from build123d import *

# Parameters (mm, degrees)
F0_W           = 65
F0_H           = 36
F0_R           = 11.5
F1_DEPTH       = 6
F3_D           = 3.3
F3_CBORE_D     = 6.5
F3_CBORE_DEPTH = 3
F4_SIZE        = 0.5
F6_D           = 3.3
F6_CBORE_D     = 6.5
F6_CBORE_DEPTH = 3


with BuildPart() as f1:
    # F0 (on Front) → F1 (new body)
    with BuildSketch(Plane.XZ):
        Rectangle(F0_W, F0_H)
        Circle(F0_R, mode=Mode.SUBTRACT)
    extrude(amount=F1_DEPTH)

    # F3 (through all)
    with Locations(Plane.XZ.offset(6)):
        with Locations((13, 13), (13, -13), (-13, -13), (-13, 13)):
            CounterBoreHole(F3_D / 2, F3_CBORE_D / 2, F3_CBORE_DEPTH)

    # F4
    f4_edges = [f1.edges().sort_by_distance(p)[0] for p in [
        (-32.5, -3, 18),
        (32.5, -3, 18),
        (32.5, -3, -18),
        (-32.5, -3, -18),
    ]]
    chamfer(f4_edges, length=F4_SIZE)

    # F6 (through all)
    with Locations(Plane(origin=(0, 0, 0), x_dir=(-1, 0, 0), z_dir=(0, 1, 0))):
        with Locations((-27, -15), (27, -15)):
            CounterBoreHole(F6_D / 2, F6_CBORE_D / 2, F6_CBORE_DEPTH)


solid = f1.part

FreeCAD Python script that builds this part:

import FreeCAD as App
import Part
import Sketcher
from FreeCAD import Vector


def edges_at(feature, points):
    """Names of the edges that pass closest to the given points."""
    edges = feature.Shape.Edges
    near = lambda p: min(range(len(edges)), key=lambda i: edges[i].distToShape(Part.Vertex(*p))[0])
    return sorted({f"Edge{near(p) + 1}" for p in points})


def add_polygon(sketch, points):
    """Adds a closed chain of lines whose ends are joined by coincident constraints."""
    first, n = sketch.GeometryCount, len(points)
    for a, b in zip(points, points[1:] + points[:1]):
        sketch.addGeometry(Part.LineSegment(App.Vector(*a, 0), App.Vector(*b, 0)), False)
    for i in range(n):
        sketch.addConstraint(Sketcher.Constraint("Coincident", first + i, 2, first + (i + 1) % n, 1))

doc = App.newDocument("Part")
body = doc.addObject("PartDesign::Body", "Body")

# Sketch on XZ plane
sketch1 = doc.addObject("Sketcher::SketchObject", "Sketch")
body.addObject(sketch1)
sketch1.AttachmentSupport = (doc.XZ_Plane, [""])
sketch1.MapMode = "FlatFace"
add_polygon(sketch1, [(-32, 18), (-32, -18), (32, -18), (32, 18)])  # lines 0-3
sketch1.addGeometry(Part.Circle(Vector(0, 0, 0), Vector(0, 0, 1), 12), False)  # 4
sketch1.addConstraint([
    Sketcher.Constraint("Vertical", 0),
    Sketcher.Constraint("Horizontal", 1),
    Sketcher.Constraint("Vertical", 2),
    Sketcher.Constraint("Horizontal", 3),
    Sketcher.Constraint("Coincident", 4, 3, -1, 1),
    Sketcher.Constraint("Symmetric", 0, 2, 2, 2, -1, 1),
    Sketcher.Constraint("Diameter", 4, 23.0),
    Sketcher.Constraint("DistanceX", 1, 1, 1, 2, 65.0),
    Sketcher.Constraint("DistanceY", 0, 2, 0, 1, 36.0),
])
pad1 = doc.addObject("PartDesign::Pad", "Pad")
body.addObject(pad1)
pad1.Profile = sketch1
pad1.Length = 6

# Sketch on XZ plane
sketch2 = doc.addObject("Sketcher::SketchObject", "Sketch001")
body.addObject(sketch2)
sketch2.AttachmentSupport = (doc.XZ_Plane, [""])
sketch2.MapMode = "FlatFace"
sketch2.AttachmentOffset = App.Placement(Vector(0, 0, 6), App.Rotation())
sketch2.addGeometry([
    Part.Circle(Vector(13, 13, 0), Vector(0, 0, 1), 1.6),
    Part.Circle(Vector(13, -13, 0), Vector(0, 0, 1), 1.6),
    Part.Circle(Vector(-13, -13, 0), Vector(0, 0, 1), 1.6),
    Part.Circle(Vector(-13, 13, 0), Vector(0, 0, 1), 1.6),
], False)
sketch2.addConstraint([
    Sketcher.Constraint("Equal", 0, 1),
    Sketcher.Constraint("Equal", 1, 2),
    Sketcher.Constraint("Equal", 2, 3),
    Sketcher.Constraint("Symmetric", 0, 3, 2, 3, -1, 1),
    Sketcher.Constraint("Symmetric", 1, 3, 3, 3, -1, 1),
    Sketcher.Constraint("Symmetric", 1, 3, 2, 3, -2),
    Sketcher.Constraint("Diameter", 0, 3.3),
    Sketcher.Constraint("DistanceX", -1, 1, 0, 3, 13.0),
    Sketcher.Constraint("DistanceY", -1, 1, 0, 3, 13.0),
])
doc.recompute()
hole = doc.addObject("PartDesign::Hole", "Hole")
body.addObject(hole)
hole.Profile = sketch2
hole.ThreadType = "None"
hole.Diameter = 3.3
hole.DepthType = "ThroughAll"
hole.HoleCutType = "Counterbore"
hole.HoleCutDiameter = 6.5
hole.HoleCutDepth = 3
doc.recompute()

chamfer = doc.addObject("PartDesign::Chamfer", "Chamfer")
body.addObject(chamfer)
chamfer.Base = (hole, edges_at(hole, [
    (-32.5, -3, 18),
    (32.5, -3, 18),
    (32.5, -3, -18),
    (-32.5, -3, -18),
]))
chamfer.Size = 0.5

# Sketch on XZ plane
sketch3 = doc.addObject("Sketcher::SketchObject", "Sketch002")
body.addObject(sketch3)
sketch3.AttachmentSupport = (doc.XZ_Plane, [""])
sketch3.MapMode = "FlatFace"
sketch3.addGeometry([
    Part.Circle(Vector(27, -15, 0), Vector(0, 0, 1), 1.6),
    Part.Circle(Vector(-27, -15, 0), Vector(0, 0, 1), 1.6),
], False)
sketch3.addConstraint([
    Sketcher.Constraint("Equal", 0, 1),
    Sketcher.Constraint("Symmetric", 0, 3, 1, 3, -2),
    Sketcher.Constraint("Diameter", 0, 3.3),
    Sketcher.Constraint("DistanceX", -1, 1, 0, 3, 27.0),
    Sketcher.Constraint("DistanceY", 0, 3, -1, 1, 15.0),
])
doc.recompute()
hole2 = doc.addObject("PartDesign::Hole", "Hole001")
body.addObject(hole2)
hole2.Profile = sketch3
hole2.ThreadType = "None"
hole2.Diameter = 3.3
hole2.DepthType = "ThroughAll"
hole2.HoleCutType = "Counterbore"
hole2.HoleCutDiameter = 6.5
hole2.HoleCutDepth = 3
hole2.Reversed = True

doc.recompute()
